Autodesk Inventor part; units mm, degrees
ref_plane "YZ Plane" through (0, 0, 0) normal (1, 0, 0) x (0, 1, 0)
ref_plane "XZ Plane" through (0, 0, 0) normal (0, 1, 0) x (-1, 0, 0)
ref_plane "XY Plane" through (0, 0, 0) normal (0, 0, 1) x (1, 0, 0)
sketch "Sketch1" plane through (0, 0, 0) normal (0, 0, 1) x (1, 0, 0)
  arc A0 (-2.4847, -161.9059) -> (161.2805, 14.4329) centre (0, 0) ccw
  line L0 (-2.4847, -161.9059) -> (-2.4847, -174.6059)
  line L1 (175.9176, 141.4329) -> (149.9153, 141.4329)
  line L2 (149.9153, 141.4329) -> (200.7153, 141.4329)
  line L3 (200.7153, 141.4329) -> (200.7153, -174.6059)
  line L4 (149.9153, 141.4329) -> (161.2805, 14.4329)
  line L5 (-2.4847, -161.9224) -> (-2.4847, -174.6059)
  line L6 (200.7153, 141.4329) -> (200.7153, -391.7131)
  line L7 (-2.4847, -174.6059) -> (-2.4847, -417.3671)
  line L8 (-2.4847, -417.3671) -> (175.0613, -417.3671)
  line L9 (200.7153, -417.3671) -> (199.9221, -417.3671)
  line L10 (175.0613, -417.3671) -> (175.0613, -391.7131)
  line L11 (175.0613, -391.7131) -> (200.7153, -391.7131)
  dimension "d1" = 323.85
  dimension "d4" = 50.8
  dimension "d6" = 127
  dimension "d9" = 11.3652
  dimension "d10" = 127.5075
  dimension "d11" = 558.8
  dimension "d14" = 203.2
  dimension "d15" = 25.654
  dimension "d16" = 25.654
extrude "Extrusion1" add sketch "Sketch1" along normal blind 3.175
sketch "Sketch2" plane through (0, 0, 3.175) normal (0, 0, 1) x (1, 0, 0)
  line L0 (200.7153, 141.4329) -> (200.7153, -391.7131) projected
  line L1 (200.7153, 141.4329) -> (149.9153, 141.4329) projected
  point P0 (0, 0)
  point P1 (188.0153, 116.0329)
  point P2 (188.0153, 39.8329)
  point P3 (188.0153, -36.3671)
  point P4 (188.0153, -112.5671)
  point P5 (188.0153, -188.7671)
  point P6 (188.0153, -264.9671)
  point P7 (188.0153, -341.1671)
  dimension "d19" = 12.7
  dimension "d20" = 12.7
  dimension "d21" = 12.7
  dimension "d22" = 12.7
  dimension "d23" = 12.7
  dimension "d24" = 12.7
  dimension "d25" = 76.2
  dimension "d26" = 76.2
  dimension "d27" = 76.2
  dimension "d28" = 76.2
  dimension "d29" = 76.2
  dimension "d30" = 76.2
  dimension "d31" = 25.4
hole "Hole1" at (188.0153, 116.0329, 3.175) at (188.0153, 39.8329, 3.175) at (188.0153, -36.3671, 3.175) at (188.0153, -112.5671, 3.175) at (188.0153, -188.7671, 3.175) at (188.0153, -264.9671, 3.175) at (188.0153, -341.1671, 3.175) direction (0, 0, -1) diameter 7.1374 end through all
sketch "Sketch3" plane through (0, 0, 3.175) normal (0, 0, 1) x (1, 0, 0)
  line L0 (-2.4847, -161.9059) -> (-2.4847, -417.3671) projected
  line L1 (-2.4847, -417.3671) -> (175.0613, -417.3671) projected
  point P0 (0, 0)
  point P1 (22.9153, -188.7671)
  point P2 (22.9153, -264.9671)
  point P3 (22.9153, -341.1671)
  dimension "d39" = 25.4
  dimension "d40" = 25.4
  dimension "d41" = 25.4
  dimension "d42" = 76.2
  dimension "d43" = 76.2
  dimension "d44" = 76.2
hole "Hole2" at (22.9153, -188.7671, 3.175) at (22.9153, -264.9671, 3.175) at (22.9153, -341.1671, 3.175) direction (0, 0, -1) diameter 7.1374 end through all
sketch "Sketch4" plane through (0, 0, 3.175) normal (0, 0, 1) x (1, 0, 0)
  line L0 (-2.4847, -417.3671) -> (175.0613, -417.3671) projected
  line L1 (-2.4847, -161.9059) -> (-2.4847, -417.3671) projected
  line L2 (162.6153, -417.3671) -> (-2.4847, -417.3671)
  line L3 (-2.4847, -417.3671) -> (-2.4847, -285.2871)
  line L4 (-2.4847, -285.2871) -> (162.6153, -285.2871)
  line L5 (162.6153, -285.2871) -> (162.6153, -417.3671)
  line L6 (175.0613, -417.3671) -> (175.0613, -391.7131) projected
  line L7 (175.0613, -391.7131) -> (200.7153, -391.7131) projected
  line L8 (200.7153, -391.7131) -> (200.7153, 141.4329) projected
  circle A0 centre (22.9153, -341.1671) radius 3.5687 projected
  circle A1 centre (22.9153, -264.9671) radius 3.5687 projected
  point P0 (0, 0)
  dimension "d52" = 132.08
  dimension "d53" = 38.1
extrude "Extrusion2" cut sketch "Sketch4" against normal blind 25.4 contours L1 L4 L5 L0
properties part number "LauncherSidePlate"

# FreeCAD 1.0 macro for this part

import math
import FreeCAD as App
import Part
import Sketcher
Q = App.Units.Quantity


def add_polygon(sketch, points):
    """Adds a closed chain of lines whose ends are joined by coincident constraints."""
    first, n = sketch.GeometryCount, len(points)
    for a, b in zip(points, points[1:] + points[:1]):
        sketch.addGeometry(Part.LineSegment(App.Vector(*a, 0), App.Vector(*b, 0)), False)
    for i in range(n):
        sketch.addConstraint(Sketcher.Constraint("Coincident", first + i, 2, first + (i + 1) % n, 1))

doc = App.newDocument("Part")
body = doc.addObject("PartDesign::Body", "Body")

# Sketch on XY plane
sketch1 = body.newObject("Sketcher::SketchObject", "Sketch")
sketch1.AttachmentSupport = (doc.getObject("XY_Plane"), [""])
sketch1.MapMode = "FlatFace"
sketch1.addGeometry(Part.ArcOfCircle(Part.Circle(App.Vector(0, 0, 0), App.Vector(0, 0, 1), 161.924965), math.radians(-90.879225), math.radians(5.113745)), False)
sketch1.addGeometry(Part.LineSegment(App.Vector(-2.4847, -161.9059, 0), App.Vector(-2.4847, -417.3671, 0)), False)
sketch1.addGeometry(Part.LineSegment(App.Vector(-2.4847, -417.3671, 0), App.Vector(175.0613, -417.3671, 0)), False)
sketch1.addGeometry(Part.LineSegment(App.Vector(175.0613, -417.3671, 0), App.Vector(175.0613, -391.7131, 0)), False)
sketch1.addGeometry(Part.LineSegment(App.Vector(175.0613, -391.7131, 0), App.Vector(200.7153, -391.7131, 0)), False)
sketch1.addGeometry(Part.LineSegment(App.Vector(200.7153, -391.7131, 0), App.Vector(200.7153, 141.4329, 0)), False)
sketch1.addGeometry(Part.LineSegment(App.Vector(200.7153, 141.4329, 0), App.Vector(149.9153, 141.4329, 0)), False)
sketch1.addGeometry(Part.LineSegment(App.Vector(149.9153, 141.4329, 0), App.Vector(161.2805, 14.4329, 0)), False)
sketch1.addConstraint(Sketcher.Constraint("Coincident", 0, 1, 1, 1))
sketch1.addConstraint(Sketcher.Constraint("Coincident", 1, 2, 2, 1))
sketch1.addConstraint(Sketcher.Constraint("Coincident", 2, 2, 3, 1))
sketch1.addConstraint(Sketcher.Constraint("Coincident", 3, 2, 4, 1))
sketch1.addConstraint(Sketcher.Constraint("Coincident", 4, 2, 5, 1))
sketch1.addConstraint(Sketcher.Constraint("Coincident", 5, 2, 6, 1))
sketch1.addConstraint(Sketcher.Constraint("Coincident", 6, 2, 7, 1))
sketch1.addConstraint(Sketcher.Constraint("Tangent", 7, 2, 0, 2))
sketch1.addConstraint(Sketcher.Constraint("Vertical", 1))
sketch1.addConstraint(Sketcher.Constraint("Horizontal", 2))
sketch1.addConstraint(Sketcher.Constraint("Vertical", 3))
sketch1.addConstraint(Sketcher.Constraint("Horizontal", 4))
sketch1.addConstraint(Sketcher.Constraint("Vertical", 5))
sketch1.addConstraint(Sketcher.Constraint("Horizontal", 6))
sketch1.addConstraint(Sketcher.Constraint("Coincident", 0, 3, -1, 1))
sketch1.addConstraint(Sketcher.Constraint("Equal", 4, 3))
sketch1.addConstraint(Sketcher.Constraint("DistanceX", 6, 2, 6, 1, Q("2 in")))
sketch1.addConstraint(Sketcher.Constraint("Radius", 0, Q("6.375 in")))
sketch1.addConstraint(Sketcher.Constraint("DistanceX", 1, 2, 4, 2, Q("8 in")))
sketch1.addConstraint(Sketcher.Constraint("DistanceY", 2, 2, 5, 2, Q("22 in")))
sketch1.addConstraint(Sketcher.Constraint("DistanceY", 7, 2, 6, 2, Q("5 in")))
sketch1.addConstraint(Sketcher.Constraint("DistanceX", 4, 1, 4, 2, Q("1.01 in")))
sketch1.addConstraint(Sketcher.Constraint("Distance", 7, 127.5075))
pad1 = body.newObject("PartDesign::Pad", "Pad")
pad1.Profile = sketch1
pad1.Length = Q("0.125 in")

# Sketch on XY plane
sketch2 = body.newObject("Sketcher::SketchObject", "Sketch001")
sketch2.AttachmentSupport = (doc.getObject("XY_Plane"), [""])
sketch2.MapMode = "FlatFace"
sketch2.AttachmentOffset = App.Placement(App.Vector(0, 0, 0.125 * 25.4), App.Rotation())
sketch2.addGeometry(Part.Circle(App.Vector(188.0153, 116.0329, 0), App.Vector(0, 0, 1), 3.5687), False)
sketch2.addGeometry(Part.Circle(App.Vector(188.0153, 39.8329, 0), App.Vector(0, 0, 1), 3.5687), False)
sketch2.addGeometry(Part.Circle(App.Vector(188.0153, -36.3671, 0), App.Vector(0, 0, 1), 3.5687), False)
sketch2.addGeometry(Part.Circle(App.Vector(188.0153, -112.5671, 0), App.Vector(0, 0, 1), 3.5687), False)
sketch2.addGeometry(Part.Circle(App.Vector(188.0153, -188.7671, 0), App.Vector(0, 0, 1), 3.5687), False)
sketch2.addGeometry(Part.Circle(App.Vector(188.0153, -264.9671, 0), App.Vector(0, 0, 1), 3.5687), False)
sketch2.addGeometry(Part.Circle(App.Vector(188.0153, -341.1671, 0), App.Vector(0, 0, 1), 3.5687), False)
sketch2.addConstraint(Sketcher.Constraint("Equal", 0, 1))
sketch2.addConstraint(Sketcher.Constraint("Equal", 1, 2))
sketch2.addConstraint(Sketcher.Constraint("Equal", 2, 3))
sketch2.addConstraint(Sketcher.Constraint("Equal", 3, 4))
sketch2.addConstraint(Sketcher.Constraint("Equal", 4, 5))
sketch2.addConstraint(Sketcher.Constraint("Equal", 5, 6))
sketch2.addConstraint(Sketcher.Constraint("Vertical", 0, 3, 1, 3))
sketch2.addConstraint(Sketcher.Constraint("Vertical", 1, 3, 2, 3))
sketch2.addConstraint(Sketcher.Constraint("Vertical", 2, 3, 3, 3))
sketch2.addConstraint(Sketcher.Constraint("Vertical", 3, 3, 4, 3))
sketch2.addConstraint(Sketcher.Constraint("Vertical", 4, 3, 5, 3))
sketch2.addConstraint(Sketcher.Constraint("Vertical", 5, 3, 6, 3))
sketch2.addConstraint(Sketcher.Constraint("Diameter", 0, Q("0.281 in")))
sketch2.addConstraint(Sketcher.Constraint("DistanceY", 1, 3, 0, 3, Q("3 in")))
sketch2.addConstraint(Sketcher.Constraint("DistanceY", 2, 3, 1, 3, Q("3 in")))
sketch2.addConstraint(Sketcher.Constraint("DistanceY", 3, 3, 2, 3, Q("3 in")))
sketch2.addConstraint(Sketcher.Constraint("DistanceY", 4, 3, 3, 3, Q("3 in")))
sketch2.addConstraint(Sketcher.Constraint("DistanceY", 5, 3, 4, 3, Q("3 in")))
sketch2.addConstraint(Sketcher.Constraint("DistanceY", 6, 3, 5, 3, Q("3 in")))
sketch2.addConstraint(Sketcher.Constraint("DistanceX", -1, 1, 0, 3, 188.0153))
sketch2.addConstraint(Sketcher.Constraint("DistanceY", -1, 1, 0, 3, 116.033))
doc.recompute()
hole = body.newObject("PartDesign::Hole", "Hole")
hole.Profile = sketch2
hole.ThreadType = "None"
hole.Diameter = Q("0.281 in")
hole.DepthType = "ThroughAll"

# Sketch on XY plane
sketch3 = body.newObject("Sketcher::SketchObject", "Sketch002")
sketch3.AttachmentSupport = (doc.getObject("XY_Plane"), [""])
sketch3.MapMode = "FlatFace"
sketch3.AttachmentOffset = App.Placement(App.Vector(0, 0, 0.125 * 25.4), App.Rotation())
sketch3.addGeometry(Part.Circle(App.Vector(22.9153, -188.7671, 0), App.Vector(0, 0, 1), 3.5687), False)
sketch3.addGeometry(Part.Circle(App.Vector(22.9153, -264.9671, 0), App.Vector(0, 0, 1), 3.5687), False)
sketch3.addGeometry(Part.Circle(App.Vector(22.9153, -341.1671, 0), App.Vector(0, 0, 1), 3.5687), False)
sketch3.addConstraint(Sketcher.Constraint("Equal", 0, 1))
sketch3.addConstraint(Sketcher.Constraint("Equal", 1, 2))
sketch3.addConstraint(Sketcher.Constraint("Vertical", 0, 3, 1, 3))
sketch3.addConstraint(Sketcher.Constraint("Vertical", 1, 3, 2, 3))
sketch3.addConstraint(Sketcher.Constraint("Diameter", 0, Q("0.281 in")))
sketch3.addConstraint(Sketcher.Constraint("DistanceY", 1, 3, 0, 3, Q("3 in")))
sketch3.addConstraint(Sketcher.Constraint("DistanceY", 2, 3, 1, 3, Q("3 in")))
sketch3.addConstraint(Sketcher.Constraint("DistanceX", -1, 1, 0, 3, 22.9153))
sketch3.addConstraint(Sketcher.Constraint("DistanceY", 0, 3, -1, 1, 188.767))
doc.recompute()
hole2 = body.newObject("PartDesign::Hole", "Hole001")
hole2.Profile = sketch3
hole2.ThreadType = "None"
hole2.Diameter = Q("0.281 in")
hole2.DepthType = "ThroughAll"

# Sketch on XY plane
sketch4 = body.newObject("Sketcher::SketchObject", "Sketch003")
sketch4.AttachmentSupport = (doc.getObject("XY_Plane"), [""])
sketch4.MapMode = "FlatFace"
sketch4.AttachmentOffset = App.Placement(App.Vector(0, 0, 0.125 * 25.4), App.Rotation())
add_polygon(sketch4, [(-2.4847, -285.2871), (-2.4847, -417.3671), (162.6153, -417.3671), (162.6153, -285.2871)])  # lines 0-3
sketch4.addGeometry(Part.Circle(App.Vector(22.9153, -341.1671, 0), App.Vector(0, 0, 1), 3.5687), False)  # 4
sketch4.addConstraint(Sketcher.Constraint("Vertical", 0))
sketch4.addConstraint(Sketcher.Constraint("Horizontal", 1))
sketch4.addConstraint(Sketcher.Constraint("Vertical", 2))
sketch4.addConstraint(Sketcher.Constraint("Horizontal", 3))
sketch4.addConstraint(Sketcher.Constraint("DistanceY", 0, 2, 0, 1, Q("5.2 in")))
sketch4.addConstraint(Sketcher.Constraint("Diameter", 4, Q("0.281 in")))
sketch4.addConstraint(Sketcher.Constraint("DistanceX", 1, 1, 1, 2, Q("6.5 in")))
sketch4.addConstraint(Sketcher.Constraint("DistanceX", 0, 2, 4, 3, Q("1 in")))
sketch4.addConstraint(Sketcher.Constraint("DistanceY", 0, 2, 4, 3, Q("3 in")))
sketch4.addConstraint(Sketcher.Constraint("DistanceX", -1, 1, 4, 3, 22.9153))
sketch4.addConstraint(Sketcher.Constraint("DistanceY", 4, 3, -1, 1, 341.167))
pocket1 = body.newObject("PartDesign::Pocket", "Pocket")
pocket1.Profile = sketch4
pocket1.Length = Q("1 in")

doc.recompute()
